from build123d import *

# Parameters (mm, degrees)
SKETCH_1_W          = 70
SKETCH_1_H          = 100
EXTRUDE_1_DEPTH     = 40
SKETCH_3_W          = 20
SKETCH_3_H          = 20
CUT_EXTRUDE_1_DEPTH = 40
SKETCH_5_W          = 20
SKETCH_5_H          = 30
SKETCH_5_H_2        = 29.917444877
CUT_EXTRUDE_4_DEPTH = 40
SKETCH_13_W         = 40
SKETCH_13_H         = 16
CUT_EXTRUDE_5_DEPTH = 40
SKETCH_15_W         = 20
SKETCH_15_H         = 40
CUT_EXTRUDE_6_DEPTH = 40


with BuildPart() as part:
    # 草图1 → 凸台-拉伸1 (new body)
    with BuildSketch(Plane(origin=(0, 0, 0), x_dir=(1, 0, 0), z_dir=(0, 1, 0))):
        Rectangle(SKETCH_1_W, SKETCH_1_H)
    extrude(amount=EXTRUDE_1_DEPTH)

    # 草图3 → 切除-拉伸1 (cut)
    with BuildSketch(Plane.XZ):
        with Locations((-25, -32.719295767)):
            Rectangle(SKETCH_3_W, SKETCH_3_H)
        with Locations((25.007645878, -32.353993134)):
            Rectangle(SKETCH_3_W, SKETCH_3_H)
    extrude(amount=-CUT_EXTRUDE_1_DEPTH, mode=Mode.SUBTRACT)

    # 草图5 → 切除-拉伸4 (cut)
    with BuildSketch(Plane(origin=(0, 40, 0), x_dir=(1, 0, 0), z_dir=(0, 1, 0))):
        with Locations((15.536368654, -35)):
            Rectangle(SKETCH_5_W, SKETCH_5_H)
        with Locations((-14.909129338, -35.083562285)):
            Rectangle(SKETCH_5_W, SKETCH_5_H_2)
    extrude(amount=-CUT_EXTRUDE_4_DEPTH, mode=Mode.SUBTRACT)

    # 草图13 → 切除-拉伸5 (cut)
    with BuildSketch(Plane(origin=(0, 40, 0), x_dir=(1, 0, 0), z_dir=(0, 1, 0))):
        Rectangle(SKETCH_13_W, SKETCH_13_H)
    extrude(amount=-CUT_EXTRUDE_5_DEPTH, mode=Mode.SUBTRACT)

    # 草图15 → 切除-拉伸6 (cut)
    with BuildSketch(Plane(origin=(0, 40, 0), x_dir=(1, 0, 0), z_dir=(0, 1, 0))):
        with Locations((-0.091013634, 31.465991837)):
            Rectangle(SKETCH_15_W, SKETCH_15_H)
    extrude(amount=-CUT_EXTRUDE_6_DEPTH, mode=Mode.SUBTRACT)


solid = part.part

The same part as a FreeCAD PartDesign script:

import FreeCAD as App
import Part
import Sketcher
from FreeCAD import Vector
Q = App.Units.Quantity


def add_polygon(sketch, points):
    """Adds a closed chain of lines whose ends are joined by coincident constraints."""
    first, n = sketch.GeometryCount, len(points)
    for a, b in zip(points, points[1:] + points[:1]):
        sketch.addGeometry(Part.LineSegment(App.Vector(*a, 0), App.Vector(*b, 0)), False)
    for i in range(n):
        sketch.addConstraint(Sketcher.Constraint("Coincident", first + i, 2, first + (i + 1) % n, 1))

doc = App.newDocument("Part")
params = doc.addObject("Spreadsheet::Sheet", "Params")
for row, (alias, value) in enumerate([
    ("sketch1_width", "70 mm"),
    ("sketch1_height", "100 mm"),
    ("pad1_length", "40 mm"),
    ("sketch2_width", "20 mm"),
    ("pocket1_length", "40 mm"),
    ("sketch3_width", "20 mm"),
    ("sketch3_height", "30 mm"),
    ("pocket2_length", "40 mm"),
    ("sketch4_width", "40 mm"),
    ("sketch4_height", "16 mm"),
    ("pocket3_length", "40 mm"),
    ("sketch5_width", "20 mm"),
    ("sketch5_height", "40 mm"),
    ("pocket4_length", "40 mm"),
], start=1):
    params.set(f"A{row}", alias)
    params.set(f"B{row}", "=" + value)
    params.setAlias(f"B{row}", alias)

body = doc.addObject("PartDesign::Body", "Body")

sketch1 = body.newObject("Sketcher::SketchObject", "Sketch")
sketch1.AttachmentSupport = (doc.getObject("XZ_Plane"), [""])
sketch1.MapMode = "FlatFace"
add_polygon(sketch1, [(-35, -50), (-35, 50), (35, 50), (35, -50)])
sketch1.addConstraint([
    Sketcher.Constraint("Vertical", 0),
    Sketcher.Constraint("Horizontal", 1),
    Sketcher.Constraint("Vertical", 2),
    Sketcher.Constraint("Horizontal", 3),
    Sketcher.Constraint("Symmetric", 0, 2, 2, 2, -1, 1),
    Sketcher.Constraint("DistanceX", 1, 1, 1, 2, Q("70 mm")),
    Sketcher.Constraint("DistanceY", 0, 1, 0, 2, Q("100 mm")),
])
sketch1.setExpression("Constraints[9]", "Params.sketch1_width")
sketch1.setExpression("Constraints[10]", "Params.sketch1_height")
pad1 = body.newObject("PartDesign::Pad", "Pad")
pad1.Profile = sketch1
pad1.setExpression("Length", "Params.pad1_length")
pad1.Reversed = True

sketch2 = body.newObject("Sketcher::SketchObject", "Sketch001")
sketch2.AttachmentSupport = (doc.getObject("XZ_Plane"), [""])
sketch2.MapMode = "FlatFace"
add_polygon(sketch2, [(-35, -23), (-35, -43), (-15, -43), (-15, -23)])
add_polygon(sketch2, [(15, -22), (15, -42), (35, -42), (35, -22)])
sketch2.addConstraint([
    Sketcher.Constraint("Vertical", 0),
    Sketcher.Constraint("Horizontal", 1),
    Sketcher.Constraint("Vertical", 2),
    Sketcher.Constraint("Horizontal", 3),
    Sketcher.Constraint("Vertical", 4),
    Sketcher.Constraint("Horizontal", 5),
    Sketcher.Constraint("Vertical", 6),
    Sketcher.Constraint("Horizontal", 7),
    Sketcher.Constraint("Equal", 3, 5),
    Sketcher.Constraint("Equal", 7, 0),
    Sketcher.Constraint("Equal", 2, 4),
    Sketcher.Constraint("DistanceX", 1, 1, 1, 2, Q("20 mm")),
    Sketcher.Constraint("DistanceX", 0, 2, -1, 1, Q("35 mm")),
    Sketcher.Constraint("DistanceY", 0, 2, -1, 1, Q("42.719296 mm")),
    Sketcher.Constraint("DistanceX", -1, 1, 4, 2, Q("15.007646 mm")),
    Sketcher.Constraint("DistanceY", 4, 2, -1, 1, Q("42.353993 mm")),
])
sketch2.setExpression("Constraints[19]", "Params.sketch2_width")
pocket1 = body.newObject("PartDesign::Pocket", "Pocket")
pocket1.Profile = sketch2
pocket1.setExpression("Length", "Params.pocket1_length")

sketch3 = body.newObject("Sketcher::SketchObject", "Sketch002")
sketch3.AttachmentSupport = (doc.getObject("XZ_Plane"), [""])
sketch3.MapMode = "FlatFace"
sketch3.AttachmentOffset = App.Placement(Vector(0, 0, -40), App.Rotation())
add_polygon(sketch3, [(6, 20), (6, 50), (26, 50), (26, 20)])
add_polygon(sketch3, [(-25, 20), (-25, 50), (-5, 50), (-5, 20)])
sketch3.addConstraint([
    Sketcher.Constraint("Vertical", 0),
    Sketcher.Constraint("Horizontal", 1),
    Sketcher.Constraint("Vertical", 2),
    Sketcher.Constraint("Horizontal", 3),
    Sketcher.Constraint("Vertical", 4),
    Sketcher.Constraint("Horizontal", 5),
    Sketcher.Constraint("Vertical", 6),
    Sketcher.Constraint("Horizontal", 7),
    Sketcher.Constraint("Equal", 3, 5),
    Sketcher.Constraint("DistanceX", 1, 1, 1, 2, Q("20 mm")),
    Sketcher.Constraint("DistanceY", 0, 1, 0, 2, Q("30 mm")),
    Sketcher.Constraint("DistanceY", -1, 1, 0, 2, Q("50 mm")),
    Sketcher.Constraint("DistanceY", 4, 1, 4, 2, Q("29.917445 mm")),
    Sketcher.Constraint("DistanceX", -1, 1, 0, 2, Q("5.536369 mm")),
    Sketcher.Constraint("DistanceX", 4, 2, -1, 1, Q("24.909129 mm")),
    Sketcher.Constraint("DistanceY", -1, 1, 6, 2, Q("20.12484 mm")),
])
sketch3.setExpression("Constraints[17]", "Params.sketch3_width")
sketch3.setExpression("Constraints[18]", "Params.sketch3_height")
pocket2 = body.newObject("PartDesign::Pocket", "Pocket001")
pocket2.Profile = sketch3
pocket2.setExpression("Length", "Params.pocket2_length")
pocket2.Reversed = True

sketch4 = body.newObject("Sketcher::SketchObject", "Sketch003")
sketch4.AttachmentSupport = (doc.getObject("XZ_Plane"), [""])
sketch4.MapMode = "FlatFace"
sketch4.AttachmentOffset = App.Placement(Vector(0, 0, -40), App.Rotation())
add_polygon(sketch4, [(-20, -8), (-20, 8), (20, 8), (20, -8)])
sketch4.addConstraint([
    Sketcher.Constraint("Vertical", 0),
    Sketcher.Constraint("Horizontal", 1),
    Sketcher.Constraint("Vertical", 2),
    Sketcher.Constraint("Horizontal", 3),
    Sketcher.Constraint("Symmetric", 0, 2, 2, 2, -1, 1),
    Sketcher.Constraint("DistanceX", 1, 1, 1, 2, Q("40 mm")),
    Sketcher.Constraint("DistanceY", 0, 1, 0, 2, Q("16 mm")),
])
sketch4.setExpression("Constraints[9]", "Params.sketch4_width")
sketch4.setExpression("Constraints[10]", "Params.sketch4_height")
pocket3 = body.newObject("PartDesign::Pocket", "Pocket002")
pocket3.Profile = sketch4
pocket3.setExpression("Length", "Params.pocket3_length")
pocket3.Reversed = True

sketch5 = body.newObject("Sketcher::SketchObject", "Sketch004")
sketch5.AttachmentSupport = (doc.getObject("XZ_Plane"), [""])
sketch5.MapMode = "FlatFace"
sketch5.AttachmentOffset = App.Placement(Vector(0, 0, -40), App.Rotation())
add_polygon(sketch5, [(-10, -51), (-10, -11), (10, -11), (10, -51)])
sketch5.addConstraint([
    Sketcher.Constraint("Vertical", 0),
    Sketcher.Constraint("Horizontal", 1),
    Sketcher.Constraint("Vertical", 2),
    Sketcher.Constraint("Horizontal", 3),
    Sketcher.Constraint("DistanceX", 1, 1, 1, 2, Q("20 mm")),
    Sketcher.Constraint("DistanceY", 0, 1, 0, 2, Q("40 mm")),
    Sketcher.Constraint("DistanceY", 0, 2, -1, 1, Q("11.465992 mm")),
    Sketcher.Constraint("DistanceX", 0, 2, -1, 1, Q("10.091014 mm")),
])
sketch5.setExpression("Constraints[8]", "Params.sketch5_width")
sketch5.setExpression("Constraints[9]", "Params.sketch5_height")
pocket4 = body.newObject("PartDesign::Pocket", "Pocket003")
pocket4.Profile = sketch5
pocket4.setExpression("Length", "Params.pocket4_length")
pocket4.Reversed = True

doc.recompute()
